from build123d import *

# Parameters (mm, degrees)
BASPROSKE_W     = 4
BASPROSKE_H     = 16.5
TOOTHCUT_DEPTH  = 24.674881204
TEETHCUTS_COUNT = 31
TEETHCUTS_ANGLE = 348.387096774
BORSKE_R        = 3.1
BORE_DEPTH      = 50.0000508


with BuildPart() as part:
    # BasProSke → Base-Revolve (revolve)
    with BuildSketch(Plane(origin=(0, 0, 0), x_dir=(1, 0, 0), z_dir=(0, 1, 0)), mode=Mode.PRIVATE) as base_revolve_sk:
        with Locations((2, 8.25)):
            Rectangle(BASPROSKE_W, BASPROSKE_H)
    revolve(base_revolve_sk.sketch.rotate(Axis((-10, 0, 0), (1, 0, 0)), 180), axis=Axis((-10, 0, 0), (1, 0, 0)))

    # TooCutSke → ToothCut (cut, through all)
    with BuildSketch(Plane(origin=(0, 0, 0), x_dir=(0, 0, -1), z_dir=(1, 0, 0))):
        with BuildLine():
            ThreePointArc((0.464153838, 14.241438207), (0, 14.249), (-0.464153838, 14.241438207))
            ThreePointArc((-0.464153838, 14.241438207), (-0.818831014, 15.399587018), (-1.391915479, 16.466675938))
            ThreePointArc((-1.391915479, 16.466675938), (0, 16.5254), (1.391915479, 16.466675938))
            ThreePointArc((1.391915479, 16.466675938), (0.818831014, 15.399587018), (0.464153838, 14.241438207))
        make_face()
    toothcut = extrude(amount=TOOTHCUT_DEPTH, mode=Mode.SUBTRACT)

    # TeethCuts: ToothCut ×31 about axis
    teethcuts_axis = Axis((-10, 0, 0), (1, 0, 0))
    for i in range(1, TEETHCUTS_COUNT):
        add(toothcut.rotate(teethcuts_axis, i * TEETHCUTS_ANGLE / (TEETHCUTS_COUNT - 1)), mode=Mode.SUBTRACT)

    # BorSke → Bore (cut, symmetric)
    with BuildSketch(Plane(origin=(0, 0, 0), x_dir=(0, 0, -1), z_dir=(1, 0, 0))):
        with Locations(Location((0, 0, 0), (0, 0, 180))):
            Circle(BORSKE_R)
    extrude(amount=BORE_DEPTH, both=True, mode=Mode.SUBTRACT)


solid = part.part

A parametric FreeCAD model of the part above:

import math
import FreeCAD as App
import Part
import Sketcher

V = App.Vector
Q = App.Units.Quantity

doc = App.newDocument("Part")
body = doc.addObject("PartDesign::Body", "Body")

sketch1 = doc.addObject("Sketcher::SketchObject", "Sketch")
body.addObject(sketch1)
sketch1.AttachmentSupport = (doc.XZ_Plane, [""])
sketch1.MapMode = "FlatFace"
sketch1.addGeometry(Part.LineSegment(V(0, -16.5, 0), V(0, 0, 0)), False)
sketch1.addGeometry(Part.LineSegment(V(0, 0, 0), V(4, 0, 0)), False)
sketch1.addGeometry(Part.LineSegment(V(4, 0, 0), V(4, -16.5, 0)), False)
sketch1.addGeometry(Part.LineSegment(V(4, -16.5, 0), V(0, -16.5, 0)), False)
sketch1.addConstraint(Sketcher.Constraint("Coincident", 0, 2, 1, 1))
sketch1.addConstraint(Sketcher.Constraint("Coincident", 1, 2, 2, 1))
sketch1.addConstraint(Sketcher.Constraint("Coincident", 2, 2, 3, 1))
sketch1.addConstraint(Sketcher.Constraint("Coincident", 3, 2, 0, 1))
sketch1.addConstraint(Sketcher.Constraint("Vertical", 0))
sketch1.addConstraint(Sketcher.Constraint("Horizontal", 1))
sketch1.addConstraint(Sketcher.Constraint("Vertical", 2))
sketch1.addConstraint(Sketcher.Constraint("Horizontal", 3))
sketch1.addConstraint(Sketcher.Constraint("Coincident", 0, 2, -1, 1))
sketch1.addConstraint(Sketcher.Constraint("DistanceX", 1, 1, 1, 2, Q("4 mm")))
sketch1.addConstraint(Sketcher.Constraint("DistanceY", 0, 1, 0, 2, Q("16.5 mm")))
revolution = doc.addObject("PartDesign::Revolution", "Revolution")
body.addObject(revolution)
revolution.Profile = sketch1
revolution.ReferenceAxis = (sketch1, ["H_Axis"])
revolution.Angle = 360

sketch2 = doc.addObject("Sketcher::SketchObject", "Sketch001")
body.addObject(sketch2)
sketch2.AttachmentSupport = (doc.YZ_Plane, [""])
sketch2.MapMode = "FlatFace"
sketch2.addGeometry(Part.ArcOfCircle(Part.Circle(V(0.000001, 0, 0), V(0, 0, 1), 14.248999), math.radians(-1.866711), math.radians(1.866711)), False)
sketch2.addGeometry(Part.ArcOfCircle(Part.Circle(V(13.013702, -6.541379, 0), V(0, 0, 1), 6.2), math.radians(56.156165), math.radians(78.578691)), False)
sketch2.addGeometry(Part.ArcOfCircle(Part.Circle(V(0, 0, 0), V(0, 0, 1), 16.5254), math.radians(-4.831682), math.radians(4.831682)), False)
sketch2.addGeometry(Part.ArcOfCircle(Part.Circle(V(13.013702, 6.541379, 0), V(0, 0, 1), 6.2), math.radians(-78.578691), math.radians(-56.156165)), False)
sketch2.addConstraint(Sketcher.Constraint("Coincident", 0, 1, 1, 2))
sketch2.addConstraint(Sketcher.Constraint("Coincident", 1, 1, 2, 1))
sketch2.addConstraint(Sketcher.Constraint("Coincident", 2, 2, 3, 2))
sketch2.addConstraint(Sketcher.Constraint("Coincident", 3, 1, 0, 2))
sketch2.addConstraint(Sketcher.Constraint("Coincident", 0, 3, -1, 1))
sketch2.addConstraint(Sketcher.Constraint("Coincident", 2, 3, -1, 1))
sketch2.addConstraint(Sketcher.Constraint("Equal", 1, 3))
sketch2.addConstraint(Sketcher.Constraint("Symmetric", 1, 3, 3, 3, -1))
sketch2.addConstraint(Sketcher.Constraint("Radius", 1, Q("6.2 mm")))
sketch2.addConstraint(Sketcher.Constraint("Radius", 0, Q("14.248999 mm")))
sketch2.addConstraint(Sketcher.Constraint("Radius", 2, Q("16.5254 mm")))
sketch2.addConstraint(Sketcher.Constraint("DistanceX", 0, 3, 1, 3, Q("13.013702 mm")))
sketch2.addConstraint(Sketcher.Constraint("DistanceY", 1, 3, -1, 1, Q("6.541379 mm")))
pocket1 = doc.addObject("PartDesign::Pocket", "Pocket")
body.addObject(pocket1)
pocket1.Profile = sketch2
pocket1.Type = "ThroughAll"
pocket1.Reversed = True
doc.recompute()

polarpattern = doc.addObject("PartDesign::PolarPattern", "PolarPattern")
body.addObject(polarpattern)
polarpattern.Originals = [pocket1]
polarpattern.Axis = (doc.X_Axis, [""])
polarpattern.Angle = 360
polarpattern.Occurrences = 31
body.Tip = polarpattern

sketch3 = doc.addObject("Sketcher::SketchObject", "Sketch002")
body.addObject(sketch3)
sketch3.AttachmentSupport = (doc.YZ_Plane, [""])
sketch3.MapMode = "FlatFace"
sketch3.addGeometry(Part.Circle(V(0, 0, 0), V(0, 0, 1), 3.1), False)
sketch3.addConstraint(Sketcher.Constraint("Coincident", 0, 3, -1, 1))
sketch3.addConstraint(Sketcher.Constraint("Diameter", 0, Q("6.2 mm")))
pocket2 = doc.addObject("PartDesign::Pocket", "Pocket001")
body.addObject(pocket2)
pocket2.Profile = sketch3
pocket2.Length = 100.000102
pocket2.Midplane = True

doc.recompute()
